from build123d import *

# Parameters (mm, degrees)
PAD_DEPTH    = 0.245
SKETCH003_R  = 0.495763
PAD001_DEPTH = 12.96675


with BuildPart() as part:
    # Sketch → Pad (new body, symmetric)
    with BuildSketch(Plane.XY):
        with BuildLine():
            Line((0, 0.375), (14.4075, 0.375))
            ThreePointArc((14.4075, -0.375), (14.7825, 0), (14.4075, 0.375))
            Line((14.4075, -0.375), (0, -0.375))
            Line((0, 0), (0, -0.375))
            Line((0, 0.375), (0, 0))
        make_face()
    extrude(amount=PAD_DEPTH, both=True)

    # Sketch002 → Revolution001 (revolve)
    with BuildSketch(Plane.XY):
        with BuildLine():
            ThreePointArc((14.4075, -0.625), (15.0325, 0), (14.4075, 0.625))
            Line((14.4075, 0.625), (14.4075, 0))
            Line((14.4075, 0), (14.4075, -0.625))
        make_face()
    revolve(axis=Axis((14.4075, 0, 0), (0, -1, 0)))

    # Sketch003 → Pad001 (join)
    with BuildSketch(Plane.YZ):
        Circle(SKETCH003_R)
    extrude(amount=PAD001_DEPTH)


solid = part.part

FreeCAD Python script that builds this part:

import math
import FreeCAD as App
import Part
import Sketcher

V = App.Vector
Q = App.Units.Quantity

doc = App.newDocument("Part")
body = doc.addObject("PartDesign::Body", "Body")

# Sketch on XY plane
sketch1 = doc.addObject("Sketcher::SketchObject", "Sketch")
body.addObject(sketch1)
sketch1.AttachmentSupport = (doc.XY_Plane, [""])
sketch1.MapMode = "FlatFace"
sketch1.addGeometry(Part.LineSegment(V(14.41, 0.38, 0), V(0, 0.38, 0)), False)
sketch1.addGeometry(Part.LineSegment(V(0, 0.38, 0), V(0, -0.38, 0)), False)
sketch1.addGeometry(Part.LineSegment(V(0, -0.38, 0), V(14.41, -0.38, 0)), False)
sketch1.addGeometry(Part.ArcOfCircle(Part.Circle(V(14.41, 0, 0), V(0, 0, 1), 0.38), math.radians(-90), math.radians(90)), False)
sketch1.addConstraint(Sketcher.Constraint("Coincident", 0, 2, 1, 1))
sketch1.addConstraint(Sketcher.Constraint("Coincident", 1, 2, 2, 1))
sketch1.addConstraint(Sketcher.Constraint("Tangent", 2, 2, 3, 1))
sketch1.addConstraint(Sketcher.Constraint("Tangent", 3, 2, 0, 1))
sketch1.addConstraint(Sketcher.Constraint("Horizontal", 0))
sketch1.addConstraint(Sketcher.Constraint("Vertical", 1))
sketch1.addConstraint(Sketcher.Constraint("Horizontal", 2))
sketch1.addConstraint(Sketcher.Constraint("Symmetric", 0, 2, 1, 2, -1, 1))
sketch1.addConstraint(Sketcher.Constraint("Radius", 3, Q("0.375 mm")))
sketch1.addConstraint(Sketcher.Constraint("DistanceX", 0, 2, 0, 1, Q("14.4075 mm")))
pad1 = doc.addObject("PartDesign::Pad", "Pad")
body.addObject(pad1)
pad1.Profile = sketch1
pad1.Length = 0.49
pad1.Midplane = True

# Sketch on XY plane
sketch2 = doc.addObject("Sketcher::SketchObject", "Sketch001")
body.addObject(sketch2)
sketch2.AttachmentSupport = (doc.XY_Plane, [""])
sketch2.MapMode = "FlatFace"
sketch2.addGeometry(Part.ArcOfCircle(Part.Circle(V(14.4, 0, 0), V(0, 0, 1), 0.6), math.radians(-90), math.radians(90)), False)
sketch2.addGeometry(Part.LineSegment(V(14.4, 0.6, 0), V(14.4, -0.6, 0)), False)
sketch2.addGeometry(Part.LineSegment(V(14.4, 0.6, 0), V(14.4, -0.6, 0)), True)  # axis
sketch2.addConstraint(Sketcher.Constraint("Coincident", 0, 1, 1, 2))
sketch2.addConstraint(Sketcher.Constraint("Coincident", 1, 1, 0, 2))
sketch2.addConstraint(Sketcher.Constraint("Vertical", 1))
sketch2.addConstraint(Sketcher.Constraint("Vertical", 2))
sketch2.addConstraint(Sketcher.Constraint("Coincident", 2, 1, 1, 1))
sketch2.addConstraint(Sketcher.Constraint("PointOnObject", 0, 3, -1))
sketch2.addConstraint(Sketcher.Constraint("Equal", 1, 2))
sketch2.addConstraint(Sketcher.Constraint("Radius", 0, Q("0.625 mm")))
sketch2.addConstraint(Sketcher.Constraint("DistanceX", -1, 1, 0, 3, Q("14.4075 mm")))
sketch2.addConstraint(Sketcher.Constraint("DistanceX", -1, 1, 0, 1, Q("14.4075 mm")))
revolution = doc.addObject("PartDesign::Revolution", "Revolution")
body.addObject(revolution)
revolution.Profile = sketch2
revolution.ReferenceAxis = (sketch2, ["Axis0"])
revolution.Angle = 360

# Sketch on YZ plane
sketch3 = doc.addObject("Sketcher::SketchObject", "Sketch002")
body.addObject(sketch3)
sketch3.AttachmentSupport = (doc.YZ_Plane, [""])
sketch3.MapMode = "FlatFace"
sketch3.addGeometry(Part.Circle(V(0, 0, 0), V(0, 0, 1), 0.5), False)
sketch3.addConstraint(Sketcher.Constraint("Coincident", 0, 3, -1, 1))
sketch3.addConstraint(Sketcher.Constraint("Diameter", 0, Q("0.991526 mm")))
pad2 = doc.addObject("PartDesign::Pad", "Pad001")
body.addObject(pad2)
pad2.Profile = sketch3
pad2.Length = 12.96675

doc.recompute()
